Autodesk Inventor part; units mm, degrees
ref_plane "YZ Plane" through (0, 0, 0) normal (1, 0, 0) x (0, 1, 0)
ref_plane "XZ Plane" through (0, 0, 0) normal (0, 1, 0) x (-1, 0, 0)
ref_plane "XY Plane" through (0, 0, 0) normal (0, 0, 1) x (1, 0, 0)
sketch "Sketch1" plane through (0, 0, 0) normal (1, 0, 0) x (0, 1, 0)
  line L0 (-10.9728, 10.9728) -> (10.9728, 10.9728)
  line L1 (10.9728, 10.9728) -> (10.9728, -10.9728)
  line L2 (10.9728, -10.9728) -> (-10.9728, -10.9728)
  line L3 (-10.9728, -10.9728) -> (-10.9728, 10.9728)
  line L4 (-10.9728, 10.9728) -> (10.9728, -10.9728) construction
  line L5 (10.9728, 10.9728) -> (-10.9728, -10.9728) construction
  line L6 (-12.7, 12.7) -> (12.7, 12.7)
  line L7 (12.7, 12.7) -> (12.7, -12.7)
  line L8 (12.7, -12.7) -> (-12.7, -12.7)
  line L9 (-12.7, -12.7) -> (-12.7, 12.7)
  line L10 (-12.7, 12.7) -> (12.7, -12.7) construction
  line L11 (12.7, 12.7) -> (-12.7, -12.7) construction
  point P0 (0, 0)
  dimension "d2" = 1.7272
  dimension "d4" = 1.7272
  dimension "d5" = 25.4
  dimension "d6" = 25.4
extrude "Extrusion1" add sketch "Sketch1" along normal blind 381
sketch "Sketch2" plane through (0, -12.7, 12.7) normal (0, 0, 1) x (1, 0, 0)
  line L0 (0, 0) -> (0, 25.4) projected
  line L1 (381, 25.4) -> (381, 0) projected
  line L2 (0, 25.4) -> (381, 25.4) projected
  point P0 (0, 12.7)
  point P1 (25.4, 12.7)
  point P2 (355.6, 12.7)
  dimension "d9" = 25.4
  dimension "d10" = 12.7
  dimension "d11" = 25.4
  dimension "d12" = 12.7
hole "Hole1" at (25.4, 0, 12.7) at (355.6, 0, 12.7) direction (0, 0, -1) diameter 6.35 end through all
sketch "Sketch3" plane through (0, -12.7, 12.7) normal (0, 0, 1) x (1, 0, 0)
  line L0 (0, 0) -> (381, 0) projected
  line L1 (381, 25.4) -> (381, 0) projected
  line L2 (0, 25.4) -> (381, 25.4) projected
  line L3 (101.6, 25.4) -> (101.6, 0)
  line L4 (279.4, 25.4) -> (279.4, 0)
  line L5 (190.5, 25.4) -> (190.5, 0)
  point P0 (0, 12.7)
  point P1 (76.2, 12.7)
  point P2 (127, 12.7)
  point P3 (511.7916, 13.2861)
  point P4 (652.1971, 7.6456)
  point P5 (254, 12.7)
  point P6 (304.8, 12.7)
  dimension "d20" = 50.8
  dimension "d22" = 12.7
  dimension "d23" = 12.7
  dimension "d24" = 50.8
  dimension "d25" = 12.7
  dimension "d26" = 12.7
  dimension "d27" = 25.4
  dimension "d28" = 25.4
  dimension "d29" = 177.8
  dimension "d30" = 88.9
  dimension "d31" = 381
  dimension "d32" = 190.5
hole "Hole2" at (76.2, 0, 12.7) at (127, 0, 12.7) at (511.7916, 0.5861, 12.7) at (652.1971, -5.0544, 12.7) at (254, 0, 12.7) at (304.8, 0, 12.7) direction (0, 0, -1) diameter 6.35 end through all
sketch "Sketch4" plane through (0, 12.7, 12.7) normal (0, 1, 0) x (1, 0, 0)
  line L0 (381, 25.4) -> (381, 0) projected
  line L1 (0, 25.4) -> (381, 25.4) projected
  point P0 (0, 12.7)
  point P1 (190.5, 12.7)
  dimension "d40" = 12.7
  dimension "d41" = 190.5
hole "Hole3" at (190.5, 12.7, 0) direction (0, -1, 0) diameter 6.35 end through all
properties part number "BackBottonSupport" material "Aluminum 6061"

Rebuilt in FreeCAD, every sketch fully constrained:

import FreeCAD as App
import Part
import Sketcher
from FreeCAD import Vector
Q = App.Units.Quantity

doc = App.newDocument("Part")
body = doc.addObject("PartDesign::Body", "Body")

sketch1 = body.newObject("Sketcher::SketchObject", "Sketch")
sketch1.AttachmentSupport = (doc.getObject("YZ_Plane"), [""])
sketch1.MapMode = "FlatFace"
sketch1.addGeometry([
    Part.LineSegment(Vector(12.7, 12.7, 0), Vector(-12.7, 12.7, 0)),
    Part.LineSegment(Vector(-12.7, 12.7, 0), Vector(-12.7, -12.7, 0)),
    Part.LineSegment(Vector(-12.7, -12.7, 0), Vector(12.7, -12.7, 0)),
    Part.LineSegment(Vector(12.7, -12.7, 0), Vector(12.7, 12.7, 0)),
    Part.LineSegment(Vector(-10.9728, -10.9728, 0), Vector(-10.9728, 10.9728, 0)),
    Part.LineSegment(Vector(-10.9728, 10.9728, 0), Vector(10.9728, 10.9728, 0)),
    Part.LineSegment(Vector(10.9728, 10.9728, 0), Vector(10.9728, -10.9728, 0)),
    Part.LineSegment(Vector(10.9728, -10.9728, 0), Vector(-10.9728, -10.9728, 0)),
], False)
sketch1.addConstraint([
    Sketcher.Constraint("Coincident", 0, 2, 1, 1),
    Sketcher.Constraint("Coincident", 1, 2, 2, 1),
    Sketcher.Constraint("Coincident", 2, 2, 3, 1),
    Sketcher.Constraint("Coincident", 3, 2, 0, 1),
    Sketcher.Constraint("Coincident", 4, 2, 5, 1),
    Sketcher.Constraint("Coincident", 5, 2, 6, 1),
    Sketcher.Constraint("Coincident", 6, 2, 7, 1),
    Sketcher.Constraint("Coincident", 7, 2, 4, 1),
    Sketcher.Constraint("Horizontal", 0),
    Sketcher.Constraint("Vertical", 1),
    Sketcher.Constraint("Horizontal", 2),
    Sketcher.Constraint("Vertical", 3),
    Sketcher.Constraint("Vertical", 4),
    Sketcher.Constraint("Horizontal", 5),
    Sketcher.Constraint("Vertical", 6),
    Sketcher.Constraint("Horizontal", 7),
    Sketcher.Constraint("Symmetric", 0, 2, 2, 2, -1, 1),
    Sketcher.Constraint("Symmetric", 4, 2, 6, 2, -1, 1),
    Sketcher.Constraint("Equal", 2, 1),
    Sketcher.Constraint("Equal", 7, 4),
    Sketcher.Constraint("DistanceX", 0, 2, 0, 1, Q("1 in")),
    Sketcher.Constraint("DistanceX", 0, 2, 4, 2, Q("0.068 in")),
])
pad1 = body.newObject("PartDesign::Pad", "Pad")
pad1.Profile = sketch1
pad1.Length = Q("15 in")

sketch2 = body.newObject("Sketcher::SketchObject", "Sketch001")
sketch2.AttachmentSupport = (doc.getObject("XY_Plane"), [""])
sketch2.MapMode = "FlatFace"
sketch2.AttachmentOffset = App.Placement(Vector(0, 0, 0.5 * 25.4), App.Rotation())
sketch2.addGeometry([
    Part.Circle(Vector(25.4, 0, 0), Vector(0, 0, 1), 3.175),
    Part.Circle(Vector(355.6, 0, 0), Vector(0, 0, 1), 3.175),
], False)
sketch2.addConstraint([
    Sketcher.Constraint("Equal", 0, 1),
    Sketcher.Constraint("PointOnObject", 0, 3, -1),
    Sketcher.Constraint("PointOnObject", 1, 3, -1),
    Sketcher.Constraint("Diameter", 0, Q("0.25 in")),
    Sketcher.Constraint("DistanceX", -1, 1, 0, 3, Q("1 in")),
    Sketcher.Constraint("DistanceX", -1, 1, 1, 3, Q("14 in")),
])
doc.recompute()
hole = body.newObject("PartDesign::Hole", "Hole")
hole.Profile = sketch2
hole.ThreadType = "None"
hole.Diameter = Q("0.25 in")
hole.DepthType = "ThroughAll"

sketch3 = body.newObject("Sketcher::SketchObject", "Sketch002")
sketch3.AttachmentSupport = (doc.getObject("XY_Plane"), [""])
sketch3.MapMode = "FlatFace"
sketch3.AttachmentOffset = App.Placement(Vector(0, 0, 0.5 * 25.4), App.Rotation())
sketch3.addGeometry([
    Part.Circle(Vector(76.2, 0, 0), Vector(0, 0, 1), 3.175),
    Part.Circle(Vector(127, 0, 0), Vector(0, 0, 1), 3.175),
    Part.Circle(Vector(511.7916, 0.5861, 0), Vector(0, 0, 1), 3.175),
    Part.Circle(Vector(652.1971, -5.0544, 0), Vector(0, 0, 1), 3.175),
    Part.Circle(Vector(254, 0, 0), Vector(0, 0, 1), 3.175),
    Part.Circle(Vector(304.8, 0, 0), Vector(0, 0, 1), 3.175),
], False)
sketch3.addConstraint([
    Sketcher.Constraint("Equal", 0, 1),
    Sketcher.Constraint("Equal", 1, 2),
    Sketcher.Constraint("Equal", 2, 3),
    Sketcher.Constraint("Equal", 3, 4),
    Sketcher.Constraint("Equal", 4, 5),
    Sketcher.Constraint("PointOnObject", 0, 3, -1),
    Sketcher.Constraint("PointOnObject", 1, 3, -1),
    Sketcher.Constraint("PointOnObject", 4, 3, -1),
    Sketcher.Constraint("PointOnObject", 5, 3, -1),
    Sketcher.Constraint("Diameter", 0, Q("0.25 in")),
    Sketcher.Constraint("DistanceX", -1, 1, 0, 3, Q("3 in")),
    Sketcher.Constraint("DistanceX", -1, 1, 1, 3, Q("5 in")),
    Sketcher.Constraint("DistanceX", -1, 1, 4, 3, Q("10 in")),
    Sketcher.Constraint("DistanceX", -1, 1, 5, 3, Q("12 in")),
    Sketcher.Constraint("DistanceY", 3, 3, -1, 1, Q("0.199 in")),
    Sketcher.Constraint("DistanceX", -1, 1, 2, 3, 511.7916),
    Sketcher.Constraint("DistanceY", -1, 1, 2, 3, 0.586),
    Sketcher.Constraint("DistanceX", -1, 1, 3, 3, 652.197),
])
doc.recompute()
hole2 = body.newObject("PartDesign::Hole", "Hole001")
hole2.Profile = sketch3
hole2.ThreadType = "None"
hole2.Diameter = Q("0.25 in")
hole2.DepthType = "ThroughAll"

sketch4 = body.newObject("Sketcher::SketchObject", "Sketch003")
sketch4.AttachmentSupport = (doc.getObject("XZ_Plane"), [""])
sketch4.MapMode = "FlatFace"
sketch4.AttachmentOffset = App.Placement(Vector(0, 0, -0.5 * 25.4), App.Rotation())
sketch4.addGeometry(Part.Circle(Vector(190.5, 0, 0), Vector(0, 0, 1), 3.175), False)
sketch4.addConstraint([
    Sketcher.Constraint("PointOnObject", 0, 3, -1),
    Sketcher.Constraint("Diameter", 0, Q("0.25 in")),
    Sketcher.Constraint("DistanceX", -1, 1, 0, 3, Q("7.5 in")),
])
doc.recompute()
hole3 = body.newObject("PartDesign::Hole", "Hole002")
hole3.Profile = sketch4
hole3.ThreadType = "None"
hole3.Diameter = Q("0.25 in")
hole3.DepthType = "ThroughAll"
hole3.Reversed = True

doc.recompute()
